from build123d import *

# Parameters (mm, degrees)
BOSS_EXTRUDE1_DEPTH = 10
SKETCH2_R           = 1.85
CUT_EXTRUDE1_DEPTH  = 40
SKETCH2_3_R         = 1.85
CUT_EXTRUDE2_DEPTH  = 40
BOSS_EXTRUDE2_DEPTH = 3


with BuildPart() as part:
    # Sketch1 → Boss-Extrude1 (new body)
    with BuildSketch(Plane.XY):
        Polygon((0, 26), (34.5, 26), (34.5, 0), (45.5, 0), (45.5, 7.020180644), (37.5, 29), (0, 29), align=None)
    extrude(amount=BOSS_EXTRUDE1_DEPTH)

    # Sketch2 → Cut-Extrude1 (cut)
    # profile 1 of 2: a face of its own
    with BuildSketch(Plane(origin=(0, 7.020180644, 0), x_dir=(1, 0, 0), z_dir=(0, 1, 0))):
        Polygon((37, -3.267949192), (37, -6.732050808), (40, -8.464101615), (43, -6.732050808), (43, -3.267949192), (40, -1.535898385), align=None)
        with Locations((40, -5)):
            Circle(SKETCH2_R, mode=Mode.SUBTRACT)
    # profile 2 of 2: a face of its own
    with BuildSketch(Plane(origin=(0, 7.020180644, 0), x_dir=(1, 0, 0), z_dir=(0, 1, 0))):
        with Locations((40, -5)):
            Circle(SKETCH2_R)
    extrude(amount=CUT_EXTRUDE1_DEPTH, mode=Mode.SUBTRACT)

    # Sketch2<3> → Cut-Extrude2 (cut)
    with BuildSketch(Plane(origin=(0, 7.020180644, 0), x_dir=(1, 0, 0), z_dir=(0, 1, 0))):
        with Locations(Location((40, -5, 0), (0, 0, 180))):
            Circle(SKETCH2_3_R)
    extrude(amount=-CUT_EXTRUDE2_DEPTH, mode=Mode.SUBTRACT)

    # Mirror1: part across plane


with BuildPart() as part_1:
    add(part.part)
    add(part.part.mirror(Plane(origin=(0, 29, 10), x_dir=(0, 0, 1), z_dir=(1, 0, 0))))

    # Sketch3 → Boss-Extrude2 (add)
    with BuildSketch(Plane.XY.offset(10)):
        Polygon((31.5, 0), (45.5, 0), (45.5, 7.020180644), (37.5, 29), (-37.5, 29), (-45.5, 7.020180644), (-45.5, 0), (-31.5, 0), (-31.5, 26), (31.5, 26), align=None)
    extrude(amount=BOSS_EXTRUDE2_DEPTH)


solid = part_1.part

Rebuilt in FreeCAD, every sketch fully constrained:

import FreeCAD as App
import Part
import Sketcher
Q = App.Units.Quantity

doc = App.newDocument("Part")
params = doc.addObject("Spreadsheet::Sheet", "Params")
for row, (alias, value) in enumerate([
    ("sketch1_width", "11 mm"),
    ("sketch1_height", "26 mm"),
    ("sketch1_height2", "3 mm"),
    ("sketch1_width2", "34.5 mm"),
    ("sketch1_width3", "37.5 mm"),
    ("pad1_length", "10 mm"),
    ("pocket1_length", "40 mm"),
    ("sketch3_diameter", "3.7 mm"),
    ("pocket2_length", "40 mm"),
    ("sketch4_width", "14 mm"),
    ("sketch4_width2", "75 mm"),
    ("sketch4_width3", "63 mm"),
    ("sketch4_height", "26 mm"),
    ("pad2_length", "3 mm"),
], start=1):
    params.set(f"A{row}", alias)
    params.set(f"B{row}", "=" + value)
    params.setAlias(f"B{row}", alias)

body = doc.addObject("PartDesign::Body", "Body")

sketch1 = body.newObject("Sketcher::SketchObject", "Sketch")
sketch1.AttachmentSupport = (doc.getObject("XY_Plane"), [""])
sketch1.MapMode = "FlatFace"
sketch1.addGeometry(Part.LineSegment(App.Vector(0, 26, 0), App.Vector(34.5, 26, 0)), False)
sketch1.addGeometry(Part.LineSegment(App.Vector(34.5, 26, 0), App.Vector(34.5, 0, 0)), False)
sketch1.addGeometry(Part.LineSegment(App.Vector(34.5, 0, 0), App.Vector(45.5, 0, 0)), False)
sketch1.addGeometry(Part.LineSegment(App.Vector(45.5, 0, 0), App.Vector(45.5, 7.020181, 0)), False)
sketch1.addGeometry(Part.LineSegment(App.Vector(45.5, 7.020181, 0), App.Vector(37.5, 29, 0)), False)
sketch1.addGeometry(Part.LineSegment(App.Vector(37.5, 29, 0), App.Vector(0, 29, 0)), False)
sketch1.addGeometry(Part.LineSegment(App.Vector(0, 29, 0), App.Vector(0, 26, 0)), False)
sketch1.addConstraint(Sketcher.Constraint("Coincident", 0, 2, 1, 1))
sketch1.addConstraint(Sketcher.Constraint("Coincident", 1, 2, 2, 1))
sketch1.addConstraint(Sketcher.Constraint("Coincident", 2, 2, 3, 1))
sketch1.addConstraint(Sketcher.Constraint("Coincident", 3, 2, 4, 1))
sketch1.addConstraint(Sketcher.Constraint("Coincident", 4, 2, 5, 1))
sketch1.addConstraint(Sketcher.Constraint("Coincident", 5, 2, 6, 1))
sketch1.addConstraint(Sketcher.Constraint("Coincident", 6, 2, 0, 1))
sketch1.addConstraint(Sketcher.Constraint("Horizontal", 0))
sketch1.addConstraint(Sketcher.Constraint("Vertical", 1))
sketch1.addConstraint(Sketcher.Constraint("Horizontal", 2))
sketch1.addConstraint(Sketcher.Constraint("Vertical", 3))
sketch1.addConstraint(Sketcher.Constraint("Horizontal", 5))
sketch1.addConstraint(Sketcher.Constraint("Vertical", 6))
sketch1.addConstraint(Sketcher.Constraint("PointOnObject", 1, 2, -1))
sketch1.addConstraint(Sketcher.Constraint("PointOnObject", 5, 2, -2))
sketch1.addConstraint(Sketcher.Constraint("DistanceX", 2, 1, 2, 2, 11.0))
sketch1.addConstraint(Sketcher.Constraint("DistanceY", 1, 2, 1, 1, 26.0))
sketch1.addConstraint(Sketcher.Constraint("DistanceY", 6, 2, 6, 1, 3.0))
sketch1.addConstraint(Sketcher.Constraint("Angle", 4, Q("110 deg")))
sketch1.addConstraint(Sketcher.Constraint("DistanceX", 0, 1, 0, 2, 34.5))
sketch1.addConstraint(Sketcher.Constraint("DistanceX", 5, 2, 5, 1, 37.5))
sketch1.setExpression("Constraints[15]", "Params.sketch1_width")
sketch1.setExpression("Constraints[16]", "Params.sketch1_height")
sketch1.setExpression("Constraints[17]", "Params.sketch1_height2")
sketch1.setExpression("Constraints[19]", "Params.sketch1_width2")
sketch1.setExpression("Constraints[20]", "Params.sketch1_width3")
pad1 = body.newObject("PartDesign::Pad", "Pad")
pad1.Profile = sketch1
pad1.setExpression("Length", "Params.pad1_length")

sketch2 = body.newObject("Sketcher::SketchObject", "Sketch001")
sketch2.AttachmentSupport = (doc.getObject("XZ_Plane"), [""])
sketch2.MapMode = "FlatFace"
sketch2.AttachmentOffset = App.Placement(App.Vector(0, 0, -7.020181), App.Rotation())
sketch2.addGeometry(Part.LineSegment(App.Vector(37, 3.267949, 0), App.Vector(37, 6.732051, 0)), False)
sketch2.addGeometry(Part.LineSegment(App.Vector(37, 6.732051, 0), App.Vector(40, 8.464102, 0)), False)
sketch2.addGeometry(Part.LineSegment(App.Vector(40, 8.464102, 0), App.Vector(43, 6.732051, 0)), False)
sketch2.addGeometry(Part.LineSegment(App.Vector(43, 6.732051, 0), App.Vector(43, 3.267949, 0)), False)
sketch2.addGeometry(Part.LineSegment(App.Vector(43, 3.267949, 0), App.Vector(40, 1.535898, 0)), False)
sketch2.addGeometry(Part.LineSegment(App.Vector(40, 1.535898, 0), App.Vector(37, 3.267949, 0)), False)
sketch2.addConstraint(Sketcher.Constraint("Coincident", 0, 2, 1, 1))
sketch2.addConstraint(Sketcher.Constraint("Coincident", 1, 2, 2, 1))
sketch2.addConstraint(Sketcher.Constraint("Coincident", 2, 2, 3, 1))
sketch2.addConstraint(Sketcher.Constraint("Coincident", 3, 2, 4, 1))
sketch2.addConstraint(Sketcher.Constraint("Coincident", 4, 2, 5, 1))
sketch2.addConstraint(Sketcher.Constraint("Coincident", 5, 2, 0, 1))
sketch2.addConstraint(Sketcher.Constraint("Vertical", 0))
sketch2.addConstraint(Sketcher.Constraint("Vertical", 3))
sketch2.addConstraint(Sketcher.Constraint("Parallel", 1, 4))
sketch2.addConstraint(Sketcher.Constraint("Parallel", 2, 5))
sketch2.addConstraint(Sketcher.Constraint("Horizontal", 0, 2, 2, 2))
sketch2.addConstraint(Sketcher.Constraint("Horizontal", 3, 2, 5, 2))
sketch2.addConstraint(Sketcher.Constraint("Vertical", 1, 2, 4, 2))
sketch2.addConstraint(Sketcher.Constraint("Angle", 1, Q("30 deg")))
sketch2.addConstraint(Sketcher.Constraint("DistanceX", -1, 1, 0, 2, 37.0))
sketch2.addConstraint(Sketcher.Constraint("DistanceX", -1, 1, 1, 2, 40.0))
sketch2.addConstraint(Sketcher.Constraint("DistanceY", 0, 1, 0, 2, 3.464102))
sketch2.addConstraint(Sketcher.Constraint("DistanceY", -1, 1, 1, 2, 8.464102))
pocket1 = body.newObject("PartDesign::Pocket", "Pocket")
pocket1.Profile = sketch2
pocket1.setExpression("Length", "Params.pocket1_length")

sketch3 = body.newObject("Sketcher::SketchObject", "Sketch002")
sketch3.AttachmentSupport = (doc.getObject("XZ_Plane"), [""])
sketch3.MapMode = "FlatFace"
sketch3.AttachmentOffset = App.Placement(App.Vector(0, 0, -7.020181), App.Rotation())
sketch3.addGeometry(Part.Circle(App.Vector(40, 5, 0), App.Vector(0, 0, 1), 1.85), False)
sketch3.addConstraint(Sketcher.Constraint("Diameter", 0, 3.7))
sketch3.addConstraint(Sketcher.Constraint("DistanceX", -1, 1, 0, 3, 40.0))
sketch3.addConstraint(Sketcher.Constraint("DistanceY", -1, 1, 0, 3, 5.0))
sketch3.setExpression("Constraints[0]", "Params.sketch3_diameter")
pocket2 = body.newObject("PartDesign::Pocket", "Pocket001")
pocket2.Profile = sketch3
pocket2.setExpression("Length", "Params.pocket2_length")
pocket2.Reversed = True
body2 = doc.addObject("PartDesign::Body", "Body001")
doc.recompute()

body2.BaseFeature = body
doc.recompute()

mirroring = doc.addObject("Part::Mirroring", "Mirroring")
mirroring.Source = body
mirroring.Base = App.Vector(0, 29, 10)
mirroring.Normal = App.Vector(1, 0, 0)
body3 = doc.addObject("PartDesign::Body", "Body002")
body3.BaseFeature = mirroring
boolean = body2.newObject("PartDesign::Boolean", "Boolean")
boolean.Type = "Fuse"
boolean.addObjects([body3])
doc.recompute()

sketch4 = body2.newObject("Sketcher::SketchObject", "Sketch003")
sketch4.AttachmentSupport = (doc.getObject("XY_Plane001"), [""])
sketch4.MapMode = "FlatFace"
sketch4.AttachmentOffset = App.Placement(App.Vector(0, 0, 10), App.Rotation())
sketch4.addGeometry(Part.LineSegment(App.Vector(31.5, 0, 0), App.Vector(45.5, 0, 0)), False)
sketch4.addGeometry(Part.LineSegment(App.Vector(45.5, 0, 0), App.Vector(45.5, 7.020181, 0)), False)
sketch4.addGeometry(Part.LineSegment(App.Vector(45.5, 7.020181, 0), App.Vector(37.5, 29, 0)), False)
sketch4.addGeometry(Part.LineSegment(App.Vector(37.5, 29, 0), App.Vector(-37.5, 29, 0)), False)
sketch4.addGeometry(Part.LineSegment(App.Vector(-37.5, 29, 0), App.Vector(-45.5, 7.020181, 0)), False)
sketch4.addGeometry(Part.LineSegment(App.Vector(-45.5, 7.020181, 0), App.Vector(-45.5, 0, 0)), False)
sketch4.addGeometry(Part.LineSegment(App.Vector(-45.5, 0, 0), App.Vector(-31.5, 0, 0)), False)
sketch4.addGeometry(Part.LineSegment(App.Vector(-31.5, 0, 0), App.Vector(-31.5, 26, 0)), False)
sketch4.addGeometry(Part.LineSegment(App.Vector(-31.5, 26, 0), App.Vector(31.5, 26, 0)), False)
sketch4.addGeometry(Part.LineSegment(App.Vector(31.5, 26, 0), App.Vector(31.5, 0, 0)), False)
sketch4.addConstraint(Sketcher.Constraint("Coincident", 0, 2, 1, 1))
sketch4.addConstraint(Sketcher.Constraint("Coincident", 1, 2, 2, 1))
sketch4.addConstraint(Sketcher.Constraint("Coincident", 2, 2, 3, 1))
sketch4.addConstraint(Sketcher.Constraint("Coincident", 3, 2, 4, 1))
sketch4.addConstraint(Sketcher.Constraint("Coincident", 4, 2, 5, 1))
sketch4.addConstraint(Sketcher.Constraint("Coincident", 5, 2, 6, 1))
sketch4.addConstraint(Sketcher.Constraint("Coincident", 6, 2, 7, 1))
sketch4.addConstraint(Sketcher.Constraint("Coincident", 7, 2, 8, 1))
sketch4.addConstraint(Sketcher.Constraint("Coincident", 8, 2, 9, 1))
sketch4.addConstraint(Sketcher.Constraint("Coincident", 9, 2, 0, 1))
sketch4.addConstraint(Sketcher.Constraint("Horizontal", 0))
sketch4.addConstraint(Sketcher.Constraint("Vertical", 1))
sketch4.addConstraint(Sketcher.Constraint("Horizontal", 3))
sketch4.addConstraint(Sketcher.Constraint("Vertical", 5))
sketch4.addConstraint(Sketcher.Constraint("Horizontal", 6))
sketch4.addConstraint(Sketcher.Constraint("Vertical", 7))
sketch4.addConstraint(Sketcher.Constraint("Horizontal", 8))
sketch4.addConstraint(Sketcher.Constraint("Vertical", 9))
sketch4.addConstraint(Sketcher.Constraint("Symmetric", 0, 2, 5, 2, -1, 1))
sketch4.addConstraint(Sketcher.Constraint("Symmetric", 6, 2, 9, 2, -2))
sketch4.addConstraint(Sketcher.Constraint("Horizontal", 1, 2, 4, 2))
sketch4.addConstraint(Sketcher.Constraint("Equal", 2, 4))
sketch4.addConstraint(Sketcher.Constraint("DistanceX", 0, 1, 0, 2, 14.0))
sketch4.addConstraint(Sketcher.Constraint("DistanceX", 3, 2, 3, 1, 75.0))
sketch4.addConstraint(Sketcher.Constraint("DistanceX", 8, 1, 8, 2, 63.0))
sketch4.addConstraint(Sketcher.Constraint("DistanceY", 7, 1, 7, 2, 26.0))
sketch4.addConstraint(Sketcher.Constraint("Angle", 2, Q("110 deg")))
sketch4.addConstraint(Sketcher.Constraint("DistanceY", -1, 1, 2, 2, 29.0))
sketch4.setExpression("Constraints[22]", "Params.sketch4_width")
sketch4.setExpression("Constraints[23]", "Params.sketch4_width2")
sketch4.setExpression("Constraints[24]", "Params.sketch4_width3")
sketch4.setExpression("Constraints[25]", "Params.sketch4_height")
pad2 = body2.newObject("PartDesign::Pad", "Pad001")
pad2.Profile = sketch4
pad2.setExpression("Length", "Params.pad2_length")
mirroring.Visibility = False

doc.recompute()
